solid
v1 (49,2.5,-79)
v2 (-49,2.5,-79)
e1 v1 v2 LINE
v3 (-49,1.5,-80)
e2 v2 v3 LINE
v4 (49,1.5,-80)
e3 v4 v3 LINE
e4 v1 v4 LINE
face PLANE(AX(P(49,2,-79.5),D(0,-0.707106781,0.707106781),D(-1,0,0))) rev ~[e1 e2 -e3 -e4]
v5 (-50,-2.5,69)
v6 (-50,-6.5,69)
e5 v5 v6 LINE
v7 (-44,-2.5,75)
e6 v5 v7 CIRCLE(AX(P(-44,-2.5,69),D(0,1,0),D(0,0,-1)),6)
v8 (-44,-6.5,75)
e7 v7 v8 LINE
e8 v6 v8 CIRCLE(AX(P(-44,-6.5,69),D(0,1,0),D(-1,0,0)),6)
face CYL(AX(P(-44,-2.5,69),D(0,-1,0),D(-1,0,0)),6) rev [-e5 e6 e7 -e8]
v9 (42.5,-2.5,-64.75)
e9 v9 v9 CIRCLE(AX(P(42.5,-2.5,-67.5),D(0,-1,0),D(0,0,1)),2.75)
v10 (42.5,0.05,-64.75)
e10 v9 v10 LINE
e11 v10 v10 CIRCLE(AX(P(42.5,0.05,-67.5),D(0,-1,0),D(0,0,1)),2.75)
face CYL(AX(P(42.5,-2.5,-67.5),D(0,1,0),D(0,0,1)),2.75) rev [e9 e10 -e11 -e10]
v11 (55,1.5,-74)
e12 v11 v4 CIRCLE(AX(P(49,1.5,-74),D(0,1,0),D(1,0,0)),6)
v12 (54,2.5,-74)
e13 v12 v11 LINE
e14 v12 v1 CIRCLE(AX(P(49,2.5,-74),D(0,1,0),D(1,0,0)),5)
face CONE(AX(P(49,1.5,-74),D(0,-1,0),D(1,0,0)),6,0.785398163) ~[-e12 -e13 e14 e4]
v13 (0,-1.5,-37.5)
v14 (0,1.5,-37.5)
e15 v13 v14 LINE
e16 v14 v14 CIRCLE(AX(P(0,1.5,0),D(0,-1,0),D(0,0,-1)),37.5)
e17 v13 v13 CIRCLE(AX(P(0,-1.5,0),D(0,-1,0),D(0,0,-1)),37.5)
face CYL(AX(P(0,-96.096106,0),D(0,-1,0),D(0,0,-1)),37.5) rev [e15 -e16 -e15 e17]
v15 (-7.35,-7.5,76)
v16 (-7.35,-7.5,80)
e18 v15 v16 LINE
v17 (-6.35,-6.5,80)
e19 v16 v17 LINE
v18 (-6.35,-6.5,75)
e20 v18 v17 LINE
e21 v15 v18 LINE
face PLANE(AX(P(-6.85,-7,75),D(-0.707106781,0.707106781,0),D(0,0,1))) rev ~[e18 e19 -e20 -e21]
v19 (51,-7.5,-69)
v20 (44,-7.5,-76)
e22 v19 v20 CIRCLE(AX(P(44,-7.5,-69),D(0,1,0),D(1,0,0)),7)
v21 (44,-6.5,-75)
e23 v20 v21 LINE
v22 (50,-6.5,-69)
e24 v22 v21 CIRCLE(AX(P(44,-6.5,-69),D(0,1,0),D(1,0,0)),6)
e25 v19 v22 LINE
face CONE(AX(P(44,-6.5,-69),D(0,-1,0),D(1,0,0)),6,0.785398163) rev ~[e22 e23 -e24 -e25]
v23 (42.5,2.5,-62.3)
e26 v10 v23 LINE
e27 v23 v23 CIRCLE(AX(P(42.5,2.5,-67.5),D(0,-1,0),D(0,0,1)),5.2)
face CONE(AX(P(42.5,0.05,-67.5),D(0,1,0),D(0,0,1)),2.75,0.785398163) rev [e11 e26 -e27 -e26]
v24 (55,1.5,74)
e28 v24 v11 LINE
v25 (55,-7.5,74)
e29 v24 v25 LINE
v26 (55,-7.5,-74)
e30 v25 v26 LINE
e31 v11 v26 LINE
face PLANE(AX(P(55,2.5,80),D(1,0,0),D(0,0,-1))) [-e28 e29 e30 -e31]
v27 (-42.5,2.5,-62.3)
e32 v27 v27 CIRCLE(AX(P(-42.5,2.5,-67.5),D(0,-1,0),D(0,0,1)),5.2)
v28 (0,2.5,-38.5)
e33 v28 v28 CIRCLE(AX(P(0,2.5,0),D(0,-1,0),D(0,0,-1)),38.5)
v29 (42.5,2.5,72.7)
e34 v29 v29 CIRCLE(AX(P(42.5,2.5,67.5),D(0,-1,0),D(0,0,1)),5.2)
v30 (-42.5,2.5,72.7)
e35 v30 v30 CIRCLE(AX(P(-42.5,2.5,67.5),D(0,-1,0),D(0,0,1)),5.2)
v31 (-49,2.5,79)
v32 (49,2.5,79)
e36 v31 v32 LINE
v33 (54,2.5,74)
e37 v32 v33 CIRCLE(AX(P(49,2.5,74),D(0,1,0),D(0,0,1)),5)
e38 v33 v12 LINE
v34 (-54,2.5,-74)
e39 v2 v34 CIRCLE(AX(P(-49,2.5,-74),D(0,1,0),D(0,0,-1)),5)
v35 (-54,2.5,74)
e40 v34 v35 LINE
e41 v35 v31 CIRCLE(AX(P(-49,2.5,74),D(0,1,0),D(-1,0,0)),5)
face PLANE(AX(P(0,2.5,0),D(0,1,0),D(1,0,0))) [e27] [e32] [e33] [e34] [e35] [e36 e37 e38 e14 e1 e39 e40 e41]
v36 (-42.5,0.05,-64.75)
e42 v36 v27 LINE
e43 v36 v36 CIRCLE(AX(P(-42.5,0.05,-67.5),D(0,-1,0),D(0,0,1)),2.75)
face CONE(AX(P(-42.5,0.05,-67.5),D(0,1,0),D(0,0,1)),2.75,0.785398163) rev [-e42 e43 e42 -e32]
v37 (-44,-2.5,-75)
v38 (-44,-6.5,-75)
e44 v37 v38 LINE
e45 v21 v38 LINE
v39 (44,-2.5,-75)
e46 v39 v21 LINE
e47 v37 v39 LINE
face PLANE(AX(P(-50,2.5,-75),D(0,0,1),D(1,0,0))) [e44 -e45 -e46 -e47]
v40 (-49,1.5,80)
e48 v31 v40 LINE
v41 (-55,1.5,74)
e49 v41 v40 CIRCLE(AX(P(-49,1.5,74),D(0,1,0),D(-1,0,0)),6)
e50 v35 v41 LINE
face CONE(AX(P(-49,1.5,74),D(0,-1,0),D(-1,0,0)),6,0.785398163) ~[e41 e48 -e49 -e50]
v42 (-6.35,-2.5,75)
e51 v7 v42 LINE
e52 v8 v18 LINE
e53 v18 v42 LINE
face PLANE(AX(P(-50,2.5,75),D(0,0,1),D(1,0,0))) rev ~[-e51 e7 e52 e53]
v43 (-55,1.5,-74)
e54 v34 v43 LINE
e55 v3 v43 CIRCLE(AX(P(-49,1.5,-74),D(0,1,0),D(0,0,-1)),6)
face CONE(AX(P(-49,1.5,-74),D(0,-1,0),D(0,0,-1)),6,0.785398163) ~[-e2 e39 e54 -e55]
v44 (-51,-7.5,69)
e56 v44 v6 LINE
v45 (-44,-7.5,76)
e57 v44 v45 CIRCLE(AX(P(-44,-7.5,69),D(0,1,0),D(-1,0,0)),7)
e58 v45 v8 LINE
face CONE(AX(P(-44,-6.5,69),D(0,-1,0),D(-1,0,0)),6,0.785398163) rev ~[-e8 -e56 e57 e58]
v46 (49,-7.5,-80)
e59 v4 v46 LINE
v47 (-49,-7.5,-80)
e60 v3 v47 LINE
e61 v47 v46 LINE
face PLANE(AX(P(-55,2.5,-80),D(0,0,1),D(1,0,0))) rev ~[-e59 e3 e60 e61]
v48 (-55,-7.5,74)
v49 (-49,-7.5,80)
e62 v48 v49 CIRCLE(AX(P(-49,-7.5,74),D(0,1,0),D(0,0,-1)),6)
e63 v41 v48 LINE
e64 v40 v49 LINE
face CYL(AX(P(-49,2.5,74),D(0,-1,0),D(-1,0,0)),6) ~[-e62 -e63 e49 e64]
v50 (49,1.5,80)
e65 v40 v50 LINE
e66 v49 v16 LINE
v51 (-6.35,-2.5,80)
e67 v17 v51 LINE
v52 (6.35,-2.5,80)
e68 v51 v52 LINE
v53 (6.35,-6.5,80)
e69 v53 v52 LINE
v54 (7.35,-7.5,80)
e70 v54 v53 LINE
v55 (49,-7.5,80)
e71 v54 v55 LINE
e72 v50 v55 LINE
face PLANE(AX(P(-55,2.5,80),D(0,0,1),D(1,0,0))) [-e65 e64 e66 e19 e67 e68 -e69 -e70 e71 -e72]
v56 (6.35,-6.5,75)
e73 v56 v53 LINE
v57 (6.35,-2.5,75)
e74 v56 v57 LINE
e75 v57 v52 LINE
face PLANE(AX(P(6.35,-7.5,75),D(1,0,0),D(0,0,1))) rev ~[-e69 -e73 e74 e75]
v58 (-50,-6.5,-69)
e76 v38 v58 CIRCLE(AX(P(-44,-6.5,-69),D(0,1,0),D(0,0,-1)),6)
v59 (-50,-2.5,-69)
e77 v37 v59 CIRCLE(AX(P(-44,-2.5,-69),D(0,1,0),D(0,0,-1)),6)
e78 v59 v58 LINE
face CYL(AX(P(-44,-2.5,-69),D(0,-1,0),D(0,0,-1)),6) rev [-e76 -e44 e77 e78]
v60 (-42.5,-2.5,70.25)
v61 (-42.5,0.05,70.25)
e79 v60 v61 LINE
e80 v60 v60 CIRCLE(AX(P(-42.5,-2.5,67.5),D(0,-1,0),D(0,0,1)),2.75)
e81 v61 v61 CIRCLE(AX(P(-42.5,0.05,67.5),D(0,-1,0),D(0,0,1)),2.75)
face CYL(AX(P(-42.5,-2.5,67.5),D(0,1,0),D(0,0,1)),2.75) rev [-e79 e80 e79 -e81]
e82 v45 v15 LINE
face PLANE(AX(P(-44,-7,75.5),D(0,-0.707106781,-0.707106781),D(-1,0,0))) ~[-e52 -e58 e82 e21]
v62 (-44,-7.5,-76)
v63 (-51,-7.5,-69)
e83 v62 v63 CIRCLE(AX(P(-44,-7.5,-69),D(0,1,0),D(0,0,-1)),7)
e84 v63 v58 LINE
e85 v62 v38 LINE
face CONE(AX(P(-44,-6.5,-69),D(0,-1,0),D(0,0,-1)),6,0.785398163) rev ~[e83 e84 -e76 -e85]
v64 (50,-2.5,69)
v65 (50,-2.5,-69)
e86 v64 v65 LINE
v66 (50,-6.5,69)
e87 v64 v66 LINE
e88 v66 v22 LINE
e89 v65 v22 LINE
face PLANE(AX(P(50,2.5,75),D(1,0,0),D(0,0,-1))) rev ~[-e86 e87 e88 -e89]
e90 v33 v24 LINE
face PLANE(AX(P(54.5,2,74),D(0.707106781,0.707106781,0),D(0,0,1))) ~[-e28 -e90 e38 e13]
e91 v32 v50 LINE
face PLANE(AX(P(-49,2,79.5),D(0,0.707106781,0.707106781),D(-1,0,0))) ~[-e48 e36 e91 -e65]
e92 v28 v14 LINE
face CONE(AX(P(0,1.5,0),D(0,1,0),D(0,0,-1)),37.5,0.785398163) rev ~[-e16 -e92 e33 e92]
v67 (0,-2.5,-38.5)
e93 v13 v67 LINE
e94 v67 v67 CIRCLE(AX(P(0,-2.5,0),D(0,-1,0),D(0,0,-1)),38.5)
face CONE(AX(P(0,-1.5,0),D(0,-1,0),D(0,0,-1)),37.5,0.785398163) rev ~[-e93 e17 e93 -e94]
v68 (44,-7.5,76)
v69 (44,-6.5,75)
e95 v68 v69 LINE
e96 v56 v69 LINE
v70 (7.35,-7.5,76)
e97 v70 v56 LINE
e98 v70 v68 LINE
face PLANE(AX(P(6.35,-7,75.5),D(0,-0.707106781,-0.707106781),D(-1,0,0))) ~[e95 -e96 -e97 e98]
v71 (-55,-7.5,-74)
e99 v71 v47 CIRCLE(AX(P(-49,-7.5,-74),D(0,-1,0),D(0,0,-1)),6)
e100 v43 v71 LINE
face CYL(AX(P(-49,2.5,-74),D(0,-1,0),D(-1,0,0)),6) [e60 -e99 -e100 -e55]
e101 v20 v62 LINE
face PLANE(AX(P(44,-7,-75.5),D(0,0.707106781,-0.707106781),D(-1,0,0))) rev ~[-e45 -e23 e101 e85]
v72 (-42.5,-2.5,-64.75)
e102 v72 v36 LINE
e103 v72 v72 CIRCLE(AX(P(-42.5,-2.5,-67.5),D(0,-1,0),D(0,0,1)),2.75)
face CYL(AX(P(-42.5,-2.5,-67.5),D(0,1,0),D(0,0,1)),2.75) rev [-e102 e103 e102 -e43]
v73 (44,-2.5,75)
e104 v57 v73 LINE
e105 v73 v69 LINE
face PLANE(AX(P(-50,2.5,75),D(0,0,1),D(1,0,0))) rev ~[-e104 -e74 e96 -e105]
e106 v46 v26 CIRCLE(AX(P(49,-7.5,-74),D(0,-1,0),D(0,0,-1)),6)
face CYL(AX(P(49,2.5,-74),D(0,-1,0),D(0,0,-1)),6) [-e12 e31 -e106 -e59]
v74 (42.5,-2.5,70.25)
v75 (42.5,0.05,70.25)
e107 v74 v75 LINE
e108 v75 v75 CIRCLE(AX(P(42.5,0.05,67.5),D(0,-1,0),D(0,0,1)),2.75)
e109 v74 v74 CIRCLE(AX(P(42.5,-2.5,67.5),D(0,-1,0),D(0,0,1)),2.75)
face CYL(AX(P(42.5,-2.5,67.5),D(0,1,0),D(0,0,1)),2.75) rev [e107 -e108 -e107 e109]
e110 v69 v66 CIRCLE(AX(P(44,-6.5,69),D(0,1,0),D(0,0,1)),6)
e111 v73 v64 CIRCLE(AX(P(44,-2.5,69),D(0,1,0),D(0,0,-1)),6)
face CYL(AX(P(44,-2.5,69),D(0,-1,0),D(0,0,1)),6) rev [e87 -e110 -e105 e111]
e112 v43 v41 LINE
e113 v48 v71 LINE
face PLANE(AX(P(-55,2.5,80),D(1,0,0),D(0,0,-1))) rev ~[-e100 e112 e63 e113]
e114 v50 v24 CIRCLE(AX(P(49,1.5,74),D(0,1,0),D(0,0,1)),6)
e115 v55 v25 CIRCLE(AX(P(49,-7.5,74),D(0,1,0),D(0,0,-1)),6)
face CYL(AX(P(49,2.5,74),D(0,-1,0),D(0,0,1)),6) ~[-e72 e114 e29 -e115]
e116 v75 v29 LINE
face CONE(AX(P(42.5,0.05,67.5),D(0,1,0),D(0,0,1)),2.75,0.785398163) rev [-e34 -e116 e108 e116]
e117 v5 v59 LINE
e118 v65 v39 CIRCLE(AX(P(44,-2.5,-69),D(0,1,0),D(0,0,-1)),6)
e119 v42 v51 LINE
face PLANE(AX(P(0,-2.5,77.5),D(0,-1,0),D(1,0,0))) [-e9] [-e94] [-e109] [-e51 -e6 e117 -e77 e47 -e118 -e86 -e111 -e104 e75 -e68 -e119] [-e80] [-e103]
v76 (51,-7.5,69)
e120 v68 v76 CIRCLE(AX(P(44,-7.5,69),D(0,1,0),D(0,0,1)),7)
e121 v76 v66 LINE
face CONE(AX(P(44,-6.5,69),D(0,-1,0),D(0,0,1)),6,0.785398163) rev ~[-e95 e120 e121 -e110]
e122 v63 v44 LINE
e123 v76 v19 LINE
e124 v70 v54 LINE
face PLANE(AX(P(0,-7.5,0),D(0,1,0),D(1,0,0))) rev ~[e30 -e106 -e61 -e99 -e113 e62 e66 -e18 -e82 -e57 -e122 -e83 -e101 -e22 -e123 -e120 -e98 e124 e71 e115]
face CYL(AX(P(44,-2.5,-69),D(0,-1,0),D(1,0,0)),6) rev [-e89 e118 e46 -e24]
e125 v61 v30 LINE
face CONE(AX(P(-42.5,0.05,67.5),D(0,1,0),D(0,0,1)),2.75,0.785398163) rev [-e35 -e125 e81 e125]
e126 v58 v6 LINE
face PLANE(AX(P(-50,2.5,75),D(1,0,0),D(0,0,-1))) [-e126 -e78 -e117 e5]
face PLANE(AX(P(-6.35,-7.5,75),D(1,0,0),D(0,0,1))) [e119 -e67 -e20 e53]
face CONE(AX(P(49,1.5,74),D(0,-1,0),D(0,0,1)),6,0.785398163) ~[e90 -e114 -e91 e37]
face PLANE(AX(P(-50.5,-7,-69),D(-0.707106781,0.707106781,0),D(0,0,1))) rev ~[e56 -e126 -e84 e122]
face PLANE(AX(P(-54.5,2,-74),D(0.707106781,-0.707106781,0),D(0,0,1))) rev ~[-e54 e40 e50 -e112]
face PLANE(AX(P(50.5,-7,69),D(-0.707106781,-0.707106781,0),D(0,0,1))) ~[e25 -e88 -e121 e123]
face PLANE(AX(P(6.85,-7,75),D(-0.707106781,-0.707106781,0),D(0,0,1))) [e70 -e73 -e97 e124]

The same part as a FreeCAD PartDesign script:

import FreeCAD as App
import Part
import Sketcher
Q = App.Units.Quantity


def edges_at(feature, points):
    """Names of the edges that pass closest to the given points."""
    edges = feature.Shape.Edges
    near = lambda p: min(range(len(edges)), key=lambda i: edges[i].distToShape(Part.Vertex(*p))[0])
    return sorted({f"Edge{near(p) + 1}" for p in points})

doc = App.newDocument("Part")
body = doc.addObject("PartDesign::Body", "Body")

sketch1 = body.newObject("Sketcher::SketchObject", "Sketch")
sketch1.AttachmentSupport = (doc.getObject("XZ_Plane"), [""])
sketch1.MapMode = "FlatFace"
sketch1.addGeometry(Part.LineSegment(App.Vector(-50, -75, 0), App.Vector(-50, 75, 0)), False)
sketch1.addGeometry(Part.LineSegment(App.Vector(-50, 75, 0), App.Vector(50, 75, 0)), False)
sketch1.addGeometry(Part.LineSegment(App.Vector(50, 75, 0), App.Vector(50, -75, 0)), False)
sketch1.addGeometry(Part.LineSegment(App.Vector(50, -75, 0), App.Vector(-50, -75, 0)), False)
sketch1.addConstraint(Sketcher.Constraint("Coincident", 0, 2, 1, 1))
sketch1.addConstraint(Sketcher.Constraint("Coincident", 1, 2, 2, 1))
sketch1.addConstraint(Sketcher.Constraint("Coincident", 2, 2, 3, 1))
sketch1.addConstraint(Sketcher.Constraint("Coincident", 3, 2, 0, 1))
sketch1.addConstraint(Sketcher.Constraint("Vertical", 0))
sketch1.addConstraint(Sketcher.Constraint("Horizontal", 1))
sketch1.addConstraint(Sketcher.Constraint("Vertical", 2))
sketch1.addConstraint(Sketcher.Constraint("Horizontal", 3))
sketch1.addConstraint(Sketcher.Constraint("Symmetric", 0, 2, 2, 2, -1, 1))
sketch1.addConstraint(Sketcher.Constraint("DistanceX", 1, 1, 1, 2, Q("100 mm")))
sketch1.addConstraint(Sketcher.Constraint("DistanceY", 0, 1, 0, 2, Q("150 mm")))
pad1 = body.newObject("PartDesign::Pad", "Pad")
pad1.Profile = sketch1
pad1.Length = 5
pad1.Midplane = True

sketch2 = body.newObject("Sketcher::SketchObject", "Sketch001")
sketch2.AttachmentSupport = (doc.getObject("YZ_Plane"), [""])
sketch2.MapMode = "FlatFace"
sketch2.AttachmentOffset = App.Placement(App.Vector(0, 0, -42.5), App.Rotation())
sketch2.addGeometry(Part.LineSegment(App.Vector(-2.5, -67.5, 0), App.Vector(2.5, -67.5, 0)), False)
sketch2.addGeometry(Part.LineSegment(App.Vector(2.5, -67.5, 0), App.Vector(2.5, -62.3, 0)), False)
sketch2.addGeometry(Part.LineSegment(App.Vector(2.5, -62.3, 0), App.Vector(0.1, -64.8, 0)), False)
sketch2.addGeometry(Part.LineSegment(App.Vector(0.1, -64.8, 0), App.Vector(-2.5, -64.8, 0)), False)
sketch2.addGeometry(Part.LineSegment(App.Vector(-2.5, -64.8, 0), App.Vector(-2.5, -67.5, 0)), False)
sketch2.addGeometry(Part.LineSegment(App.Vector(2.5, -67.5, 0), App.Vector(-2.5, -67.5, 0)), True)
sketch2.addConstraint(Sketcher.Constraint("Coincident", 0, 2, 1, 1))
sketch2.addConstraint(Sketcher.Constraint("Coincident", 1, 2, 2, 1))
sketch2.addConstraint(Sketcher.Constraint("Coincident", 2, 2, 3, 1))
sketch2.addConstraint(Sketcher.Constraint("Coincident", 3, 2, 4, 1))
sketch2.addConstraint(Sketcher.Constraint("Coincident", 4, 2, 0, 1))
sketch2.addConstraint(Sketcher.Constraint("Horizontal", 0))
sketch2.addConstraint(Sketcher.Constraint("Vertical", 1))
sketch2.addConstraint(Sketcher.Constraint("Horizontal", 3))
sketch2.addConstraint(Sketcher.Constraint("Vertical", 4))
sketch2.addConstraint(Sketcher.Constraint("Horizontal", 5))
sketch2.addConstraint(Sketcher.Constraint("Coincident", 5, 1, 0, 2))
sketch2.addConstraint(Sketcher.Constraint("Vertical", 3, 2, 5, 2))
sketch2.addConstraint(Sketcher.Constraint("DistanceX", 0, 1, 0, 2, Q("5 mm")))
sketch2.addConstraint(Sketcher.Constraint("Angle", 2, Q("-135 deg")))
sketch2.addConstraint(Sketcher.Constraint("DistanceY", 1, 1, 1, 2, Q("5.2 mm")))
sketch2.addConstraint(Sketcher.Constraint("DistanceX", 3, 2, 3, 1, Q("2.55 mm")))
sketch2.addConstraint(Sketcher.Constraint("DistanceX", -1, 1, 0, 2, Q("2.5 mm")))
sketch2.addConstraint(Sketcher.Constraint("DistanceY", 0, 2, -1, 1, Q("67.5 mm")))
groove = body.newObject("PartDesign::Groove", "Groove")
groove.Profile = sketch2
groove.ReferenceAxis = (sketch2, ["Axis0"])
groove.Angle = 360
doc.recompute()

linearpattern = body.newObject("PartDesign::LinearPattern", "LinearPattern")
linearpattern.Originals = [groove]
linearpattern.Direction = (doc.getObject("X_Axis"), [""])
linearpattern.Mode = "offset"
linearpattern.Offset = 85
linearpattern.Occurrences = 2
body.Tip = linearpattern
doc.recompute()

datumline = body.newObject("PartDesign::Line", "DatumLine")
datumline.Placement = App.Placement(App.Vector(0, 0, 0), App.Rotation(App.Vector(0, 0, 1), App.Vector(0.53281327, 0, 0.84623284)))
linearpattern2 = body.newObject("PartDesign::LinearPattern", "LinearPattern001")
linearpattern2.Originals = [groove]
linearpattern2.Direction = (datumline, [""])
linearpattern2.Mode = "offset"
linearpattern2.Offset = 159.530561
linearpattern2.Occurrences = 2
body.Tip = linearpattern2
doc.recompute()

linearpattern3 = body.newObject("PartDesign::LinearPattern", "LinearPattern002")
linearpattern3.Originals = [groove]
linearpattern3.Direction = (doc.getObject("Z_Axis"), [""])
linearpattern3.Mode = "offset"
linearpattern3.Offset = 135
linearpattern3.Occurrences = 2
body.Tip = linearpattern3

sketch3 = body.newObject("Sketcher::SketchObject", "Sketch002")
sketch3.AttachmentSupport = (doc.getObject("XZ_Plane"), [""])
sketch3.MapMode = "FlatFace"
sketch3.AttachmentOffset = App.Placement(App.Vector(0, 0, -2.5), App.Rotation())
sketch3.addGeometry(Part.LineSegment(App.Vector(-55, -80, 0), App.Vector(-55, 80, 0)), False)
sketch3.addGeometry(Part.LineSegment(App.Vector(-55, 80, 0), App.Vector(55, 80, 0)), False)
sketch3.addGeometry(Part.LineSegment(App.Vector(55, 80, 0), App.Vector(55, -80, 0)), False)
sketch3.addGeometry(Part.LineSegment(App.Vector(55, -80, 0), App.Vector(-55, -80, 0)), False)
sketch3.addGeometry(Part.LineSegment(App.Vector(50, 75, 0), App.Vector(-50, 75, 0)), False)
sketch3.addGeometry(Part.LineSegment(App.Vector(-50, 75, 0), App.Vector(-50, -75, 0)), False)
sketch3.addGeometry(Part.LineSegment(App.Vector(-50, -75, 0), App.Vector(50, -75, 0)), False)
sketch3.addGeometry(Part.LineSegment(App.Vector(50, -75, 0), App.Vector(50, 75, 0)), False)
sketch3.addConstraint(Sketcher.Constraint("Coincident", 0, 2, 1, 1))
sketch3.addConstraint(Sketcher.Constraint("Coincident", 1, 2, 2, 1))
sketch3.addConstraint(Sketcher.Constraint("Coincident", 2, 2, 3, 1))
sketch3.addConstraint(Sketcher.Constraint("Coincident", 3, 2, 0, 1))
sketch3.addConstraint(Sketcher.Constraint("Coincident", 4, 2, 5, 1))
sketch3.addConstraint(Sketcher.Constraint("Coincident", 5, 2, 6, 1))
sketch3.addConstraint(Sketcher.Constraint("Coincident", 6, 2, 7, 1))
sketch3.addConstraint(Sketcher.Constraint("Coincident", 7, 2, 4, 1))
sketch3.addConstraint(Sketcher.Constraint("Vertical", 0))
sketch3.addConstraint(Sketcher.Constraint("Horizontal", 1))
sketch3.addConstraint(Sketcher.Constraint("Vertical", 2))
sketch3.addConstraint(Sketcher.Constraint("Horizontal", 3))
sketch3.addConstraint(Sketcher.Constraint("Horizontal", 4))
sketch3.addConstraint(Sketcher.Constraint("Vertical", 5))
sketch3.addConstraint(Sketcher.Constraint("Horizontal", 6))
sketch3.addConstraint(Sketcher.Constraint("Vertical", 7))
sketch3.addConstraint(Sketcher.Constraint("Symmetric", 0, 2, 2, 2, -1, 1))
sketch3.addConstraint(Sketcher.Constraint("Symmetric", 4, 2, 6, 2, -1, 1))
sketch3.addConstraint(Sketcher.Constraint("DistanceX", 1, 1, 1, 2, Q("110 mm")))
sketch3.addConstraint(Sketcher.Constraint("DistanceX", 4, 2, 4, 1, Q("100 mm")))
sketch3.addConstraint(Sketcher.Constraint("DistanceY", 0, 1, 0, 2, Q("160 mm")))
sketch3.addConstraint(Sketcher.Constraint("DistanceY", 5, 2, 5, 1, Q("150 mm")))
pad2 = body.newObject("PartDesign::Pad", "Pad001")
pad2.Profile = sketch3
pad2.Length = 10

sketch4 = body.newObject("Sketcher::SketchObject", "Sketch003")
sketch4.AttachmentSupport = (doc.getObject("XZ_Plane"), [""])
sketch4.MapMode = "FlatFace"
sketch4.AttachmentOffset = App.Placement(App.Vector(0, 0, 7.5), App.Rotation())
sketch4.addGeometry(Part.LineSegment(App.Vector(-6, 80, 0), App.Vector(-6, 75, 0)), False)
sketch4.addGeometry(Part.LineSegment(App.Vector(-6, 75, 0), App.Vector(6, 75, 0)), False)
sketch4.addGeometry(Part.LineSegment(App.Vector(6, 75, 0), App.Vector(6, 80, 0)), False)
sketch4.addGeometry(Part.LineSegment(App.Vector(6, 80, 0), App.Vector(-6, 80, 0)), False)
sketch4.addConstraint(Sketcher.Constraint("Coincident", 0, 2, 1, 1))
sketch4.addConstraint(Sketcher.Constraint("Coincident", 1, 2, 2, 1))
sketch4.addConstraint(Sketcher.Constraint("Coincident", 2, 2, 3, 1))
sketch4.addConstraint(Sketcher.Constraint("Coincident", 3, 2, 0, 1))
sketch4.addConstraint(Sketcher.Constraint("Vertical", 0))
sketch4.addConstraint(Sketcher.Constraint("Horizontal", 1))
sketch4.addConstraint(Sketcher.Constraint("Vertical", 2))
sketch4.addConstraint(Sketcher.Constraint("Horizontal", 3))
sketch4.addConstraint(Sketcher.Constraint("DistanceY", 0, 2, 0, 1, Q("5 mm")))
sketch4.addConstraint(Sketcher.Constraint("DistanceX", 1, 1, 1, 2, Q("12.7 mm")))
sketch4.addConstraint(Sketcher.Constraint("DistanceY", -1, 1, 0, 2, Q("75 mm")))
sketch4.addConstraint(Sketcher.Constraint("DistanceX", 0, 2, -1, 1, Q("6.35 mm")))
pocket1 = body.newObject("PartDesign::Pocket", "Pocket")
pocket1.Profile = sketch4
pocket1.Length = 5
doc.recompute()

fillet = body.newObject("PartDesign::Fillet", "Fillet")
fillet.Base = (pocket1, edges_at(pocket1, [
    (55, -2.5, -80),
    (55, -2.5, 80),
    (-55, -2.5, 80),
    (-55, -2.5, -80),
    (-50, -5, -75),
    (50, -5, -75),
    (50, -5, 75),
    (-50, -5, 75),
]))
fillet.Radius = 6

sketch5 = body.newObject("Sketcher::SketchObject", "Sketch004")
sketch5.AttachmentSupport = (doc.getObject("XZ_Plane"), [""])
sketch5.MapMode = "FlatFace"
sketch5.AttachmentOffset = App.Placement(App.Vector(0, 0, -2.5), App.Rotation())
sketch5.addGeometry(Part.Circle(App.Vector(0, 0, 0), App.Vector(0, 0, 1), 38), False)
sketch5.addConstraint(Sketcher.Constraint("Coincident", 0, 3, -1, 1))
sketch5.addConstraint(Sketcher.Constraint("Diameter", 0, Q("75 mm")))
pocket2 = body.newObject("PartDesign::Pocket", "Pocket001")
pocket2.Profile = sketch5
pocket2.Type = "ThroughAll"
pocket2.Midplane = True
doc.recompute()

chamfer = body.newObject("PartDesign::Chamfer", "Chamfer")
chamfer.Base = (pocket2, edges_at(pocket2, [
    (-48.243, -7.5, -73.243),
    (48.243, -7.5, -73.243),
    (48.243, -7.5, 73.243),
    (-48.243, -7.5, 73.243),
    (0, 2.5, 37.5),
    (0, -2.5, 37.5),
    (25.175, -7.5, 75),
    (6.35, -7.5, 77.5),
    (-6.35, -7.5, 77.5),
    (0, 2.5, 80),
    (55, 2.5, 0),
    (0, 2.5, -80),
    (-55, 2.5, 0),
    (-53.243, 2.5, 78.243),
    (-53.243, 2.5, -78.243),
    (53.243, 2.5, -78.243),
    (53.243, 2.5, 78.243),
    (50, -7.5, 0),
    (0, -7.5, -75),
    (-50, -7.5, 0),
    (-25.175, -7.5, 75),
]))
chamfer.Size = 1

doc.recompute()
